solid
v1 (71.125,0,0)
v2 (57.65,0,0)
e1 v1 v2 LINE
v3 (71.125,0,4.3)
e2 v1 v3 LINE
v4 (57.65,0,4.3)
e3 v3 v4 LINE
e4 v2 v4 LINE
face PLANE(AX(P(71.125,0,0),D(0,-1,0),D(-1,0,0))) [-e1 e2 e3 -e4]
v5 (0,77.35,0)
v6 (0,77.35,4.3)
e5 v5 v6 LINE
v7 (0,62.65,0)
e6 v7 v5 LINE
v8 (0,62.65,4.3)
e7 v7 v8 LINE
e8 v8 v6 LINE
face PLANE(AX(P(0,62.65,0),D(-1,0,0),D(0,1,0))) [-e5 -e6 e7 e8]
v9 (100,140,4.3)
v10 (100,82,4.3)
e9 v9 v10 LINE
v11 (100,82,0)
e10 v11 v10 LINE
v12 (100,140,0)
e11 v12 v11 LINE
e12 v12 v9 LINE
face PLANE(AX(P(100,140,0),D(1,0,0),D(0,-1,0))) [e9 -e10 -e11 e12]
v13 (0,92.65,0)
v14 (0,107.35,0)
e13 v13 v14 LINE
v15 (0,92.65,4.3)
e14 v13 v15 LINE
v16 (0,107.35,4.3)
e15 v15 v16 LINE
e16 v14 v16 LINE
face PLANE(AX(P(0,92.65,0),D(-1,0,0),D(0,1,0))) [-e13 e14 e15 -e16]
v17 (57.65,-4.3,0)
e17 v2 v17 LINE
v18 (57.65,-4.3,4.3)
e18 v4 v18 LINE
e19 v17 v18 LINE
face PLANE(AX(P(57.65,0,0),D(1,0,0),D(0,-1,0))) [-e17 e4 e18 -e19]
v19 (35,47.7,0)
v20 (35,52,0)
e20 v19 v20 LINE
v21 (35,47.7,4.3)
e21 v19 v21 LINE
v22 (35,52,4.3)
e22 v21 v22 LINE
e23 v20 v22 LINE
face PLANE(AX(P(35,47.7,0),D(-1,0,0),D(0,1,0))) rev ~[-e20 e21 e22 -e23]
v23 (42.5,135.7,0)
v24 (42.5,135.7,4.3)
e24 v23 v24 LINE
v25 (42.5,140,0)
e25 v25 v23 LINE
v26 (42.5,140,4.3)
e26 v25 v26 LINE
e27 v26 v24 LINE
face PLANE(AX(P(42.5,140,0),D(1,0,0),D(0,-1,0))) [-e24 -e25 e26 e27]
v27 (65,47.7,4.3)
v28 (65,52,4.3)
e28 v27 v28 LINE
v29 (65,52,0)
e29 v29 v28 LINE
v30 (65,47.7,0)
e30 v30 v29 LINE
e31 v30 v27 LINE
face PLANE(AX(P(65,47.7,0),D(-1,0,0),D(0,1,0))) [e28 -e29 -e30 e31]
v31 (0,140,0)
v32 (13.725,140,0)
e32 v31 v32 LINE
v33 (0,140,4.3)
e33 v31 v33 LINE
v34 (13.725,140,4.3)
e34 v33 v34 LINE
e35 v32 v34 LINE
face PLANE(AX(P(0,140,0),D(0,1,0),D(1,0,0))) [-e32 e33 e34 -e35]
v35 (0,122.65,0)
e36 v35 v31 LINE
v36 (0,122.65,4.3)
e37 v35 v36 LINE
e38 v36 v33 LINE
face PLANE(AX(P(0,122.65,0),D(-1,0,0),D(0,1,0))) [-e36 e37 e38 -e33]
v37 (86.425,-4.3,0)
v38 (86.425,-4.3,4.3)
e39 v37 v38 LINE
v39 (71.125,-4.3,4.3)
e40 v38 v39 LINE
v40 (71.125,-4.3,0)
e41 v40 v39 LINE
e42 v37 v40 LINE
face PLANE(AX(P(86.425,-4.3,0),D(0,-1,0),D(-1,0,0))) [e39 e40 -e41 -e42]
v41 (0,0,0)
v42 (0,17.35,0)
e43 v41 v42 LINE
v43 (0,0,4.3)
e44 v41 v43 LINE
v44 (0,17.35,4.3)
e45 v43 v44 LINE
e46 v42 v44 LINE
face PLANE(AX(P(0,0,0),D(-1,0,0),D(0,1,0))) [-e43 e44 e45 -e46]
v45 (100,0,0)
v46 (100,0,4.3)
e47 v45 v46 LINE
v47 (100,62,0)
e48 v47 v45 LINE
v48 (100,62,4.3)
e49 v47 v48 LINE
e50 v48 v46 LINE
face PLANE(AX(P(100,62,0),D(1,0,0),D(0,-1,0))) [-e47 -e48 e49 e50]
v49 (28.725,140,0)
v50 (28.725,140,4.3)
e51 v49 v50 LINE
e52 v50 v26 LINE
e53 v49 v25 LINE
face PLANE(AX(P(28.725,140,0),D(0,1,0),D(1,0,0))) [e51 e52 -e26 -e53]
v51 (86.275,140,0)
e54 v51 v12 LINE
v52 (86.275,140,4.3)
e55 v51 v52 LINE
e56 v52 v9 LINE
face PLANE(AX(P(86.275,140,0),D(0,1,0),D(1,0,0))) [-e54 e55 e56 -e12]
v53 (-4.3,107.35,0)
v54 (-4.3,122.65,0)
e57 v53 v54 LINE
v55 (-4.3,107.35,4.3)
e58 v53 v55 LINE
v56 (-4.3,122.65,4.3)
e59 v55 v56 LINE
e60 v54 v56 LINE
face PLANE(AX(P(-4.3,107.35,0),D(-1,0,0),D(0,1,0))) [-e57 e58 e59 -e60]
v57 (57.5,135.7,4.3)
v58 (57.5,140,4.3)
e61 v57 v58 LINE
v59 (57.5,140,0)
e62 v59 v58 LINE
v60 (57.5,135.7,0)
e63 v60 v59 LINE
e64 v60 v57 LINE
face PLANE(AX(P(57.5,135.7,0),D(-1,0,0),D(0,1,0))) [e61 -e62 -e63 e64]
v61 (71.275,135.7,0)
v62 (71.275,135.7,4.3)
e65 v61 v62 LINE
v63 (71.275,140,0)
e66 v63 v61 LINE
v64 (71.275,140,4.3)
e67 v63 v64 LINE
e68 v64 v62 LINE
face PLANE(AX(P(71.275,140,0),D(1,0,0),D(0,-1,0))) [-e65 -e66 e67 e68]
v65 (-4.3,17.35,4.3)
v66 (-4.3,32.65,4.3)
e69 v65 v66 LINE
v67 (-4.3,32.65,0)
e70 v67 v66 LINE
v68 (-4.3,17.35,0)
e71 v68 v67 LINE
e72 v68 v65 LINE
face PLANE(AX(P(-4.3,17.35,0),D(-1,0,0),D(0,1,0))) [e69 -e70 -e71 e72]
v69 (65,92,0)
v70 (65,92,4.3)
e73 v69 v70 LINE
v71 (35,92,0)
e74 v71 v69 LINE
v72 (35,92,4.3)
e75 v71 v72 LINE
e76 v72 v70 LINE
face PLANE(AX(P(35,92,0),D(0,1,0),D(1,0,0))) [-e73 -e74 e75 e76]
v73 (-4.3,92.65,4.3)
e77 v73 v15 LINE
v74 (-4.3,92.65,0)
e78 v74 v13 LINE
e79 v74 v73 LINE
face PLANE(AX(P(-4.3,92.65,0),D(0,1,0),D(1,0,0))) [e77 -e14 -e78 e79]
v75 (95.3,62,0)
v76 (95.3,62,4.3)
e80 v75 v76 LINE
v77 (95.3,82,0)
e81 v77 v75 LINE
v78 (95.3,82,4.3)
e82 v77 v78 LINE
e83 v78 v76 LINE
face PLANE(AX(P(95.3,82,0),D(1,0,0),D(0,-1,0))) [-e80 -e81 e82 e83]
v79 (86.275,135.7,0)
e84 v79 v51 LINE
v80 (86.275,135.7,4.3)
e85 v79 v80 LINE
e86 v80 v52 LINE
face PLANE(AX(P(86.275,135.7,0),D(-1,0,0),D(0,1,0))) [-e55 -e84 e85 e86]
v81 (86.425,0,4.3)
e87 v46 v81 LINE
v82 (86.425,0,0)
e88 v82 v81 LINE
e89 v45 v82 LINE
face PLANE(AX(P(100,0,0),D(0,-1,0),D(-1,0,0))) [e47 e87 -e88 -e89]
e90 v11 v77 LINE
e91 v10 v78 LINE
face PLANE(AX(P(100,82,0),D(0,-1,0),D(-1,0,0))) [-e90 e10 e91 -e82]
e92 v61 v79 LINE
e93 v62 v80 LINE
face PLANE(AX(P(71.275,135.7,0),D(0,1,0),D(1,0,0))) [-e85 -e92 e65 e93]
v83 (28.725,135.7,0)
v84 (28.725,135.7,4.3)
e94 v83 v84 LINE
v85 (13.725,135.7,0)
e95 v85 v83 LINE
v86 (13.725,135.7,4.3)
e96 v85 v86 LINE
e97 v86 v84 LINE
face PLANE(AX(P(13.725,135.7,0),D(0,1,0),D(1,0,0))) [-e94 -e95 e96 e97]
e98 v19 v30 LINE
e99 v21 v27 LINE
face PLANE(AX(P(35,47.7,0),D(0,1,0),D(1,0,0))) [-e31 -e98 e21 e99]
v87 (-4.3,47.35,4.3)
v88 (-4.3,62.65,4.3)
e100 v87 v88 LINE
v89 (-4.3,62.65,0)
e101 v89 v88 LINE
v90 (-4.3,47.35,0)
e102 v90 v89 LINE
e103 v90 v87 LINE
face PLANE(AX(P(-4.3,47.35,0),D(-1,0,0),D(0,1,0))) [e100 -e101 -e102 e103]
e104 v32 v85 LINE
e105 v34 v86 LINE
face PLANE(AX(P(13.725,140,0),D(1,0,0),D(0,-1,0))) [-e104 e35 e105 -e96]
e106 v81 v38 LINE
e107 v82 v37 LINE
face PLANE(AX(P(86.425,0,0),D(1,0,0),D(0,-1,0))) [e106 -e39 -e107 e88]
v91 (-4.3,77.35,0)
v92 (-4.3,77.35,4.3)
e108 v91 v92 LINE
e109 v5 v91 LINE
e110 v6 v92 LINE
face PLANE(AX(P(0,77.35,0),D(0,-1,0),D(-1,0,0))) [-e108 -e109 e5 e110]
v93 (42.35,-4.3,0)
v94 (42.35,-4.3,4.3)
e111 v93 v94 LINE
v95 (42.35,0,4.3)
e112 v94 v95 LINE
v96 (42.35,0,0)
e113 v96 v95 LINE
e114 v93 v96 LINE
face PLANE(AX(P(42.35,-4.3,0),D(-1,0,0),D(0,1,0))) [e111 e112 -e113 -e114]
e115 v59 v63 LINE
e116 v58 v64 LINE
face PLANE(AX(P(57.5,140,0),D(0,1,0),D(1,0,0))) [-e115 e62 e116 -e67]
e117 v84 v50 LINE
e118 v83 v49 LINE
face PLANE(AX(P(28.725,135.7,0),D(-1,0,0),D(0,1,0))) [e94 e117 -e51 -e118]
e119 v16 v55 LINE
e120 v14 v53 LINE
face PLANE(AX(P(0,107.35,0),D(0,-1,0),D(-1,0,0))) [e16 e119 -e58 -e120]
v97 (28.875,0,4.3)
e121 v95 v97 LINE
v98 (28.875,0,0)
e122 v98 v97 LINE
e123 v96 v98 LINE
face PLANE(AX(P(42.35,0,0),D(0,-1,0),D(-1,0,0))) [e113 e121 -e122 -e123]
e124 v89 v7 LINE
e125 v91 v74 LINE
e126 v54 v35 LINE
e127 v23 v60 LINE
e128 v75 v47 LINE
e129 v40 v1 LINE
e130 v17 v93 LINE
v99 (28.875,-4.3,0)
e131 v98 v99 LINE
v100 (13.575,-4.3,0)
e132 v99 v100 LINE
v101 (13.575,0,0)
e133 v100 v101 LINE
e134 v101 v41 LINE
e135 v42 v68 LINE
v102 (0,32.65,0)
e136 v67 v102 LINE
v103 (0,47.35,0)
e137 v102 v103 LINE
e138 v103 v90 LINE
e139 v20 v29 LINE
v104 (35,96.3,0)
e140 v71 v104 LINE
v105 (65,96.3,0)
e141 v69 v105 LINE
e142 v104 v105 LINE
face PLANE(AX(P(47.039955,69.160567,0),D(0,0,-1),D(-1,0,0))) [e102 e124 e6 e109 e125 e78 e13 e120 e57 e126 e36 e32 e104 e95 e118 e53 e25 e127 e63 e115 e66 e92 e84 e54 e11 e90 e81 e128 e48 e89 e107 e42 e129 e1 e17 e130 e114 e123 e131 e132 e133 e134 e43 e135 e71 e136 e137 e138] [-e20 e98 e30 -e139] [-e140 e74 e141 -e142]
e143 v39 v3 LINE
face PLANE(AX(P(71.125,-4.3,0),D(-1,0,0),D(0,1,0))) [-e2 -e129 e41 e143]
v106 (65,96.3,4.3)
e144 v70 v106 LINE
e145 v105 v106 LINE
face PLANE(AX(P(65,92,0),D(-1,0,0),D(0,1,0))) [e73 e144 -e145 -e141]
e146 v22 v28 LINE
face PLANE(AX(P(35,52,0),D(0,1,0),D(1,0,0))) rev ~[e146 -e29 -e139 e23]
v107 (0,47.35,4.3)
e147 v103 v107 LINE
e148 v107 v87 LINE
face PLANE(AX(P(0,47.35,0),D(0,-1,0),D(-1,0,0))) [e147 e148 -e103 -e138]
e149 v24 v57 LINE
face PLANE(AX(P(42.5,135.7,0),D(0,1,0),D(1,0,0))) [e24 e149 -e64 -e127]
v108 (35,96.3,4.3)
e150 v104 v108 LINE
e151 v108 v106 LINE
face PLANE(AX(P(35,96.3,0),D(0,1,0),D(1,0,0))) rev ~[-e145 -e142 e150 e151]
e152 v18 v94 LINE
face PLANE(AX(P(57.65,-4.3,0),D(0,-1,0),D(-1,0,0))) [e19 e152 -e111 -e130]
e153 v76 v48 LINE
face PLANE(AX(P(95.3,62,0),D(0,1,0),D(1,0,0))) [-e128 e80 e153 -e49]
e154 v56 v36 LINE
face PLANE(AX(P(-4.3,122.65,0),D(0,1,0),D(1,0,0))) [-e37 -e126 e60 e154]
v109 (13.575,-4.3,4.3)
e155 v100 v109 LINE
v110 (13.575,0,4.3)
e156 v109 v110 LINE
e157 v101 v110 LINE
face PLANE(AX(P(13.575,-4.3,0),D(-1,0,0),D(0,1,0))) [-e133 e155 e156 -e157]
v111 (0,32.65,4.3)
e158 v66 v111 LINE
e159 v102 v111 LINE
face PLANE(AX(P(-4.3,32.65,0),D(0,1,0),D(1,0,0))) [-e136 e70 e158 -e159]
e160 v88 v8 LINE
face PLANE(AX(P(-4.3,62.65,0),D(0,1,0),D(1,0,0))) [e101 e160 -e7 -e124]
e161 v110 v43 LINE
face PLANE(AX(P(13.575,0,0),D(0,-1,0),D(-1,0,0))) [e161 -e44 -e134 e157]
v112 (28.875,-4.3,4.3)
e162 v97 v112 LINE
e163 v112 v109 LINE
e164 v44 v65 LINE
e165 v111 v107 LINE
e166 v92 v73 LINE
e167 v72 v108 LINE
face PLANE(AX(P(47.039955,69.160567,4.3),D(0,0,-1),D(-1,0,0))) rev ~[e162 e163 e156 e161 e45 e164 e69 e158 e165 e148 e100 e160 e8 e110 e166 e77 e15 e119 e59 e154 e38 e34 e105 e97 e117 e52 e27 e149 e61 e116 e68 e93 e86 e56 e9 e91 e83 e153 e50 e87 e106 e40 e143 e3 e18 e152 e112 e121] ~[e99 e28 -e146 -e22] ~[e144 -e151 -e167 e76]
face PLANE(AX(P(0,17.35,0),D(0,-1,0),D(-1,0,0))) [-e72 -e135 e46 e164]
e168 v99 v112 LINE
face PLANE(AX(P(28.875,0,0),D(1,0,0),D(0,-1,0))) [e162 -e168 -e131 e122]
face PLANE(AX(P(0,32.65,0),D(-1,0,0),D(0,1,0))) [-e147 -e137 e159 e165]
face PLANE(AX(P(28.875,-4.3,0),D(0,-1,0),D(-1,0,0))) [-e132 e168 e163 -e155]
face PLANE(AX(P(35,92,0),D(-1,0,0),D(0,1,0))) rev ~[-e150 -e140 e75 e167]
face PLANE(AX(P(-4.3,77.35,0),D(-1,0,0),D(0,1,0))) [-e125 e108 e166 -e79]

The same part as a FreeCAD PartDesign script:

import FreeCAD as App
import Part
import Sketcher
Q = App.Units.Quantity


def add_polygon(sketch, points):
    """Adds a closed chain of lines whose ends are joined by coincident constraints."""
    first, n = sketch.GeometryCount, len(points)
    for a, b in zip(points, points[1:] + points[:1]):
        sketch.addGeometry(Part.LineSegment(App.Vector(*a, 0), App.Vector(*b, 0)), False)
    for i in range(n):
        sketch.addConstraint(Sketcher.Constraint("Coincident", first + i, 2, first + (i + 1) % n, 1))

doc = App.newDocument("Part")
body = doc.addObject("PartDesign::Body", "Body")

sketch1 = body.newObject("Sketcher::SketchObject", "Sketch")
sketch1.AttachmentSupport = (doc.getObject("XY_Plane"), [""])
sketch1.MapMode = "FlatFace"
add_polygon(sketch1, [(100, 82), (100, 140), (86.275, 140), (86.275, 135.7), (71.275, 135.7), (71.275, 140), (57.5, 140), (57.5, 135.7), (42.5, 135.7), (42.5, 140), (28.725, 140), (28.725, 135.7), (13.725, 135.7), (13.725, 140), (0, 140), (0, 122.65), (-4.3, 122.65), (-4.3, 107.35), (0, 107.35), (0, 92.65), (-4.3, 92.65), (-4.3, 77.35), (0, 77.35), (0, 62.65), (-4.3, 62.65), (-4.3, 47.35), (0, 47.35), (0, 32.65), (-4.3, 32.65), (-4.3, 17.35), (0, 17.35), (0, 0), (13.575, 0), (13.575, -4.3), (28.875, -4.3), (28.875, 0), (42.35, 0), (42.35, -4.3), (57.65, -4.3), (57.65, 0), (71.125, 0), (71.125, -4.3), (86.425, -4.3), (86.425, 0), (100, 0), (100, 62), (95.3, 62), (95.3, 82)])
add_polygon(sketch1, [(35, 47.7), (35, 52), (65, 52), (65, 47.7)])
add_polygon(sketch1, [(35, 92), (35, 96.3), (65, 96.3), (65, 92)])
sketch1.addConstraint(Sketcher.Constraint("Vertical", 0))
sketch1.addConstraint(Sketcher.Constraint("Horizontal", 1))
sketch1.addConstraint(Sketcher.Constraint("Vertical", 2))
sketch1.addConstraint(Sketcher.Constraint("Horizontal", 3))
sketch1.addConstraint(Sketcher.Constraint("Vertical", 4))
sketch1.addConstraint(Sketcher.Constraint("Horizontal", 5))
sketch1.addConstraint(Sketcher.Constraint("Vertical", 6))
sketch1.addConstraint(Sketcher.Constraint("Horizontal", 7))
sketch1.addConstraint(Sketcher.Constraint("Vertical", 8))
sketch1.addConstraint(Sketcher.Constraint("Horizontal", 9))
sketch1.addConstraint(Sketcher.Constraint("Vertical", 10))
sketch1.addConstraint(Sketcher.Constraint("Horizontal", 11))
sketch1.addConstraint(Sketcher.Constraint("Vertical", 12))
sketch1.addConstraint(Sketcher.Constraint("Horizontal", 13))
sketch1.addConstraint(Sketcher.Constraint("Vertical", 14))
sketch1.addConstraint(Sketcher.Constraint("Horizontal", 15))
sketch1.addConstraint(Sketcher.Constraint("Vertical", 16))
sketch1.addConstraint(Sketcher.Constraint("Horizontal", 17))
sketch1.addConstraint(Sketcher.Constraint("Vertical", 18))
sketch1.addConstraint(Sketcher.Constraint("Horizontal", 19))
sketch1.addConstraint(Sketcher.Constraint("Vertical", 20))
sketch1.addConstraint(Sketcher.Constraint("Horizontal", 21))
sketch1.addConstraint(Sketcher.Constraint("Vertical", 22))
sketch1.addConstraint(Sketcher.Constraint("Horizontal", 23))
sketch1.addConstraint(Sketcher.Constraint("Vertical", 24))
sketch1.addConstraint(Sketcher.Constraint("Horizontal", 25))
sketch1.addConstraint(Sketcher.Constraint("Vertical", 26))
sketch1.addConstraint(Sketcher.Constraint("Horizontal", 27))
sketch1.addConstraint(Sketcher.Constraint("Vertical", 28))
sketch1.addConstraint(Sketcher.Constraint("Horizontal", 29))
sketch1.addConstraint(Sketcher.Constraint("Vertical", 30))
sketch1.addConstraint(Sketcher.Constraint("Horizontal", 31))
sketch1.addConstraint(Sketcher.Constraint("Vertical", 32))
sketch1.addConstraint(Sketcher.Constraint("Horizontal", 33))
sketch1.addConstraint(Sketcher.Constraint("Vertical", 34))
sketch1.addConstraint(Sketcher.Constraint("Horizontal", 35))
sketch1.addConstraint(Sketcher.Constraint("Vertical", 36))
sketch1.addConstraint(Sketcher.Constraint("Horizontal", 37))
sketch1.addConstraint(Sketcher.Constraint("Vertical", 38))
sketch1.addConstraint(Sketcher.Constraint("Horizontal", 39))
sketch1.addConstraint(Sketcher.Constraint("Vertical", 40))
sketch1.addConstraint(Sketcher.Constraint("Horizontal", 41))
sketch1.addConstraint(Sketcher.Constraint("Vertical", 42))
sketch1.addConstraint(Sketcher.Constraint("Horizontal", 43))
sketch1.addConstraint(Sketcher.Constraint("Vertical", 44))
sketch1.addConstraint(Sketcher.Constraint("Horizontal", 45))
sketch1.addConstraint(Sketcher.Constraint("Vertical", 46))
sketch1.addConstraint(Sketcher.Constraint("Horizontal", 47))
sketch1.addConstraint(Sketcher.Constraint("Vertical", 48))
sketch1.addConstraint(Sketcher.Constraint("Horizontal", 49))
sketch1.addConstraint(Sketcher.Constraint("Vertical", 50))
sketch1.addConstraint(Sketcher.Constraint("Horizontal", 51))
sketch1.addConstraint(Sketcher.Constraint("Vertical", 52))
sketch1.addConstraint(Sketcher.Constraint("Horizontal", 53))
sketch1.addConstraint(Sketcher.Constraint("Vertical", 54))
sketch1.addConstraint(Sketcher.Constraint("Horizontal", 55))
sketch1.addConstraint(Sketcher.Constraint("Coincident", 30, 2, -1, 1))
sketch1.addConstraint(Sketcher.Constraint("PointOnObject", 13, 2, -2))
sketch1.addConstraint(Sketcher.Constraint("PointOnObject", 17, 2, -2))
sketch1.addConstraint(Sketcher.Constraint("PointOnObject", 21, 2, -2))
sketch1.addConstraint(Sketcher.Constraint("PointOnObject", 25, 2, -2))
sketch1.addConstraint(Sketcher.Constraint("PointOnObject", 34, 2, -1))
sketch1.addConstraint(Sketcher.Constraint("PointOnObject", 38, 2, -1))
sketch1.addConstraint(Sketcher.Constraint("PointOnObject", 42, 2, -1))
sketch1.addConstraint(Sketcher.Constraint("Horizontal", 1, 2, 4, 2))
sketch1.addConstraint(Sketcher.Constraint("Horizontal", 3, 2, 6, 2))
sketch1.addConstraint(Sketcher.Constraint("Horizontal", 5, 2, 8, 2))
sketch1.addConstraint(Sketcher.Constraint("Horizontal", 7, 2, 10, 2))
sketch1.addConstraint(Sketcher.Constraint("Horizontal", 9, 2, 12, 2))
sketch1.addConstraint(Sketcher.Constraint("Horizontal", 33, 2, 36, 2))
sketch1.addConstraint(Sketcher.Constraint("Horizontal", 37, 2, 40, 2))
sketch1.addConstraint(Sketcher.Constraint("Vertical", 16, 2, 19, 2))
sketch1.addConstraint(Sketcher.Constraint("Vertical", 20, 2, 23, 2))
sketch1.addConstraint(Sketcher.Constraint("Vertical", 24, 2, 27, 2))
sketch1.addConstraint(Sketcher.Constraint("Vertical", 0, 2, 43, 2))
sketch1.addConstraint(Sketcher.Constraint("Vertical", 51, 2, 52, 2))
sketch1.addConstraint(Sketcher.Constraint("Vertical", 50, 2, 53, 2))
sketch1.addConstraint(Sketcher.Constraint("Equal", 3, 7))
sketch1.addConstraint(Sketcher.Constraint("Equal", 5, 9))
sketch1.addConstraint(Sketcher.Constraint("Equal", 7, 11))
sketch1.addConstraint(Sketcher.Constraint("Equal", 1, 13))
sketch1.addConstraint(Sketcher.Constraint("Equal", 33, 37))
sketch1.addConstraint(Sketcher.Constraint("Equal", 35, 39))
sketch1.addConstraint(Sketcher.Constraint("Equal", 37, 41))
sketch1.addConstraint(Sketcher.Constraint("Equal", 31, 43))
sketch1.addConstraint(Sketcher.Constraint("Equal", 29, 2))
sketch1.addConstraint(Sketcher.Constraint("Equal", 41, 16))
sketch1.addConstraint(Sketcher.Constraint("Equal", 16, 20))
sketch1.addConstraint(Sketcher.Constraint("Equal", 18, 22))
sketch1.addConstraint(Sketcher.Constraint("Equal", 20, 24))
sketch1.addConstraint(Sketcher.Constraint("Equal", 22, 26))
sketch1.addConstraint(Sketcher.Constraint("Equal", 24, 28))
sketch1.addConstraint(Sketcher.Constraint("Equal", 14, 30))
sketch1.addConstraint(Sketcher.Constraint("Equal", 12, 32))
sketch1.addConstraint(Sketcher.Constraint("Equal", 42, 48))
sketch1.addConstraint(Sketcher.Constraint("Equal", 50, 52))
sketch1.addConstraint(Sketcher.Constraint("DistanceX", 3, 2, 3, 1, Q("15 mm")))
sketch1.addConstraint(Sketcher.Constraint("DistanceX", 49, 1, 49, 2, Q("30 mm")))
sketch1.addConstraint(Sketcher.Constraint("DistanceY", 0, 1, 0, 2, Q("58 mm")))
sketch1.addConstraint(Sketcher.Constraint("DistanceY", 44, 1, 44, 2, Q("62 mm")))
sketch1.addConstraint(Sketcher.Constraint("DistanceY", 46, 1, 46, 2, Q("20 mm")))
sketch1.addConstraint(Sketcher.Constraint("DistanceX", 15, 2, 15, 1, Q("4.3 mm")))
sketch1.addConstraint(Sketcher.Constraint("DistanceX", 33, 1, 33, 2, Q("15.3 mm")))
sketch1.addConstraint(Sketcher.Constraint("DistanceX", 45, 2, 45, 1, Q("4.7 mm")))
sketch1.addConstraint(Sketcher.Constraint("DistanceY", 18, 2, 18, 1, Q("14.7 mm")))
sketch1.addConstraint(Sketcher.Constraint("DistanceX", -1, 1, 0, 2, Q("100 mm")))
sketch1.addConstraint(Sketcher.Constraint("DistanceX", -1, 1, 48, 2, Q("35 mm")))
sketch1.addConstraint(Sketcher.Constraint("DistanceY", -1, 1, 48, 2, Q("52 mm")))
sketch1.addConstraint(Sketcher.Constraint("DistanceY", -1, 1, 54, 2, Q("92 mm")))
sketch1.addConstraint(Sketcher.Constraint("DistanceX", 1, 2, 1, 1, Q("13.725 mm")))
sketch1.addConstraint(Sketcher.Constraint("DistanceX", 31, 1, 31, 2, Q("13.575 mm")))
pad1 = body.newObject("PartDesign::Pad", "Pad")
pad1.Profile = sketch1
pad1.Length = 4.3

doc.recompute()
